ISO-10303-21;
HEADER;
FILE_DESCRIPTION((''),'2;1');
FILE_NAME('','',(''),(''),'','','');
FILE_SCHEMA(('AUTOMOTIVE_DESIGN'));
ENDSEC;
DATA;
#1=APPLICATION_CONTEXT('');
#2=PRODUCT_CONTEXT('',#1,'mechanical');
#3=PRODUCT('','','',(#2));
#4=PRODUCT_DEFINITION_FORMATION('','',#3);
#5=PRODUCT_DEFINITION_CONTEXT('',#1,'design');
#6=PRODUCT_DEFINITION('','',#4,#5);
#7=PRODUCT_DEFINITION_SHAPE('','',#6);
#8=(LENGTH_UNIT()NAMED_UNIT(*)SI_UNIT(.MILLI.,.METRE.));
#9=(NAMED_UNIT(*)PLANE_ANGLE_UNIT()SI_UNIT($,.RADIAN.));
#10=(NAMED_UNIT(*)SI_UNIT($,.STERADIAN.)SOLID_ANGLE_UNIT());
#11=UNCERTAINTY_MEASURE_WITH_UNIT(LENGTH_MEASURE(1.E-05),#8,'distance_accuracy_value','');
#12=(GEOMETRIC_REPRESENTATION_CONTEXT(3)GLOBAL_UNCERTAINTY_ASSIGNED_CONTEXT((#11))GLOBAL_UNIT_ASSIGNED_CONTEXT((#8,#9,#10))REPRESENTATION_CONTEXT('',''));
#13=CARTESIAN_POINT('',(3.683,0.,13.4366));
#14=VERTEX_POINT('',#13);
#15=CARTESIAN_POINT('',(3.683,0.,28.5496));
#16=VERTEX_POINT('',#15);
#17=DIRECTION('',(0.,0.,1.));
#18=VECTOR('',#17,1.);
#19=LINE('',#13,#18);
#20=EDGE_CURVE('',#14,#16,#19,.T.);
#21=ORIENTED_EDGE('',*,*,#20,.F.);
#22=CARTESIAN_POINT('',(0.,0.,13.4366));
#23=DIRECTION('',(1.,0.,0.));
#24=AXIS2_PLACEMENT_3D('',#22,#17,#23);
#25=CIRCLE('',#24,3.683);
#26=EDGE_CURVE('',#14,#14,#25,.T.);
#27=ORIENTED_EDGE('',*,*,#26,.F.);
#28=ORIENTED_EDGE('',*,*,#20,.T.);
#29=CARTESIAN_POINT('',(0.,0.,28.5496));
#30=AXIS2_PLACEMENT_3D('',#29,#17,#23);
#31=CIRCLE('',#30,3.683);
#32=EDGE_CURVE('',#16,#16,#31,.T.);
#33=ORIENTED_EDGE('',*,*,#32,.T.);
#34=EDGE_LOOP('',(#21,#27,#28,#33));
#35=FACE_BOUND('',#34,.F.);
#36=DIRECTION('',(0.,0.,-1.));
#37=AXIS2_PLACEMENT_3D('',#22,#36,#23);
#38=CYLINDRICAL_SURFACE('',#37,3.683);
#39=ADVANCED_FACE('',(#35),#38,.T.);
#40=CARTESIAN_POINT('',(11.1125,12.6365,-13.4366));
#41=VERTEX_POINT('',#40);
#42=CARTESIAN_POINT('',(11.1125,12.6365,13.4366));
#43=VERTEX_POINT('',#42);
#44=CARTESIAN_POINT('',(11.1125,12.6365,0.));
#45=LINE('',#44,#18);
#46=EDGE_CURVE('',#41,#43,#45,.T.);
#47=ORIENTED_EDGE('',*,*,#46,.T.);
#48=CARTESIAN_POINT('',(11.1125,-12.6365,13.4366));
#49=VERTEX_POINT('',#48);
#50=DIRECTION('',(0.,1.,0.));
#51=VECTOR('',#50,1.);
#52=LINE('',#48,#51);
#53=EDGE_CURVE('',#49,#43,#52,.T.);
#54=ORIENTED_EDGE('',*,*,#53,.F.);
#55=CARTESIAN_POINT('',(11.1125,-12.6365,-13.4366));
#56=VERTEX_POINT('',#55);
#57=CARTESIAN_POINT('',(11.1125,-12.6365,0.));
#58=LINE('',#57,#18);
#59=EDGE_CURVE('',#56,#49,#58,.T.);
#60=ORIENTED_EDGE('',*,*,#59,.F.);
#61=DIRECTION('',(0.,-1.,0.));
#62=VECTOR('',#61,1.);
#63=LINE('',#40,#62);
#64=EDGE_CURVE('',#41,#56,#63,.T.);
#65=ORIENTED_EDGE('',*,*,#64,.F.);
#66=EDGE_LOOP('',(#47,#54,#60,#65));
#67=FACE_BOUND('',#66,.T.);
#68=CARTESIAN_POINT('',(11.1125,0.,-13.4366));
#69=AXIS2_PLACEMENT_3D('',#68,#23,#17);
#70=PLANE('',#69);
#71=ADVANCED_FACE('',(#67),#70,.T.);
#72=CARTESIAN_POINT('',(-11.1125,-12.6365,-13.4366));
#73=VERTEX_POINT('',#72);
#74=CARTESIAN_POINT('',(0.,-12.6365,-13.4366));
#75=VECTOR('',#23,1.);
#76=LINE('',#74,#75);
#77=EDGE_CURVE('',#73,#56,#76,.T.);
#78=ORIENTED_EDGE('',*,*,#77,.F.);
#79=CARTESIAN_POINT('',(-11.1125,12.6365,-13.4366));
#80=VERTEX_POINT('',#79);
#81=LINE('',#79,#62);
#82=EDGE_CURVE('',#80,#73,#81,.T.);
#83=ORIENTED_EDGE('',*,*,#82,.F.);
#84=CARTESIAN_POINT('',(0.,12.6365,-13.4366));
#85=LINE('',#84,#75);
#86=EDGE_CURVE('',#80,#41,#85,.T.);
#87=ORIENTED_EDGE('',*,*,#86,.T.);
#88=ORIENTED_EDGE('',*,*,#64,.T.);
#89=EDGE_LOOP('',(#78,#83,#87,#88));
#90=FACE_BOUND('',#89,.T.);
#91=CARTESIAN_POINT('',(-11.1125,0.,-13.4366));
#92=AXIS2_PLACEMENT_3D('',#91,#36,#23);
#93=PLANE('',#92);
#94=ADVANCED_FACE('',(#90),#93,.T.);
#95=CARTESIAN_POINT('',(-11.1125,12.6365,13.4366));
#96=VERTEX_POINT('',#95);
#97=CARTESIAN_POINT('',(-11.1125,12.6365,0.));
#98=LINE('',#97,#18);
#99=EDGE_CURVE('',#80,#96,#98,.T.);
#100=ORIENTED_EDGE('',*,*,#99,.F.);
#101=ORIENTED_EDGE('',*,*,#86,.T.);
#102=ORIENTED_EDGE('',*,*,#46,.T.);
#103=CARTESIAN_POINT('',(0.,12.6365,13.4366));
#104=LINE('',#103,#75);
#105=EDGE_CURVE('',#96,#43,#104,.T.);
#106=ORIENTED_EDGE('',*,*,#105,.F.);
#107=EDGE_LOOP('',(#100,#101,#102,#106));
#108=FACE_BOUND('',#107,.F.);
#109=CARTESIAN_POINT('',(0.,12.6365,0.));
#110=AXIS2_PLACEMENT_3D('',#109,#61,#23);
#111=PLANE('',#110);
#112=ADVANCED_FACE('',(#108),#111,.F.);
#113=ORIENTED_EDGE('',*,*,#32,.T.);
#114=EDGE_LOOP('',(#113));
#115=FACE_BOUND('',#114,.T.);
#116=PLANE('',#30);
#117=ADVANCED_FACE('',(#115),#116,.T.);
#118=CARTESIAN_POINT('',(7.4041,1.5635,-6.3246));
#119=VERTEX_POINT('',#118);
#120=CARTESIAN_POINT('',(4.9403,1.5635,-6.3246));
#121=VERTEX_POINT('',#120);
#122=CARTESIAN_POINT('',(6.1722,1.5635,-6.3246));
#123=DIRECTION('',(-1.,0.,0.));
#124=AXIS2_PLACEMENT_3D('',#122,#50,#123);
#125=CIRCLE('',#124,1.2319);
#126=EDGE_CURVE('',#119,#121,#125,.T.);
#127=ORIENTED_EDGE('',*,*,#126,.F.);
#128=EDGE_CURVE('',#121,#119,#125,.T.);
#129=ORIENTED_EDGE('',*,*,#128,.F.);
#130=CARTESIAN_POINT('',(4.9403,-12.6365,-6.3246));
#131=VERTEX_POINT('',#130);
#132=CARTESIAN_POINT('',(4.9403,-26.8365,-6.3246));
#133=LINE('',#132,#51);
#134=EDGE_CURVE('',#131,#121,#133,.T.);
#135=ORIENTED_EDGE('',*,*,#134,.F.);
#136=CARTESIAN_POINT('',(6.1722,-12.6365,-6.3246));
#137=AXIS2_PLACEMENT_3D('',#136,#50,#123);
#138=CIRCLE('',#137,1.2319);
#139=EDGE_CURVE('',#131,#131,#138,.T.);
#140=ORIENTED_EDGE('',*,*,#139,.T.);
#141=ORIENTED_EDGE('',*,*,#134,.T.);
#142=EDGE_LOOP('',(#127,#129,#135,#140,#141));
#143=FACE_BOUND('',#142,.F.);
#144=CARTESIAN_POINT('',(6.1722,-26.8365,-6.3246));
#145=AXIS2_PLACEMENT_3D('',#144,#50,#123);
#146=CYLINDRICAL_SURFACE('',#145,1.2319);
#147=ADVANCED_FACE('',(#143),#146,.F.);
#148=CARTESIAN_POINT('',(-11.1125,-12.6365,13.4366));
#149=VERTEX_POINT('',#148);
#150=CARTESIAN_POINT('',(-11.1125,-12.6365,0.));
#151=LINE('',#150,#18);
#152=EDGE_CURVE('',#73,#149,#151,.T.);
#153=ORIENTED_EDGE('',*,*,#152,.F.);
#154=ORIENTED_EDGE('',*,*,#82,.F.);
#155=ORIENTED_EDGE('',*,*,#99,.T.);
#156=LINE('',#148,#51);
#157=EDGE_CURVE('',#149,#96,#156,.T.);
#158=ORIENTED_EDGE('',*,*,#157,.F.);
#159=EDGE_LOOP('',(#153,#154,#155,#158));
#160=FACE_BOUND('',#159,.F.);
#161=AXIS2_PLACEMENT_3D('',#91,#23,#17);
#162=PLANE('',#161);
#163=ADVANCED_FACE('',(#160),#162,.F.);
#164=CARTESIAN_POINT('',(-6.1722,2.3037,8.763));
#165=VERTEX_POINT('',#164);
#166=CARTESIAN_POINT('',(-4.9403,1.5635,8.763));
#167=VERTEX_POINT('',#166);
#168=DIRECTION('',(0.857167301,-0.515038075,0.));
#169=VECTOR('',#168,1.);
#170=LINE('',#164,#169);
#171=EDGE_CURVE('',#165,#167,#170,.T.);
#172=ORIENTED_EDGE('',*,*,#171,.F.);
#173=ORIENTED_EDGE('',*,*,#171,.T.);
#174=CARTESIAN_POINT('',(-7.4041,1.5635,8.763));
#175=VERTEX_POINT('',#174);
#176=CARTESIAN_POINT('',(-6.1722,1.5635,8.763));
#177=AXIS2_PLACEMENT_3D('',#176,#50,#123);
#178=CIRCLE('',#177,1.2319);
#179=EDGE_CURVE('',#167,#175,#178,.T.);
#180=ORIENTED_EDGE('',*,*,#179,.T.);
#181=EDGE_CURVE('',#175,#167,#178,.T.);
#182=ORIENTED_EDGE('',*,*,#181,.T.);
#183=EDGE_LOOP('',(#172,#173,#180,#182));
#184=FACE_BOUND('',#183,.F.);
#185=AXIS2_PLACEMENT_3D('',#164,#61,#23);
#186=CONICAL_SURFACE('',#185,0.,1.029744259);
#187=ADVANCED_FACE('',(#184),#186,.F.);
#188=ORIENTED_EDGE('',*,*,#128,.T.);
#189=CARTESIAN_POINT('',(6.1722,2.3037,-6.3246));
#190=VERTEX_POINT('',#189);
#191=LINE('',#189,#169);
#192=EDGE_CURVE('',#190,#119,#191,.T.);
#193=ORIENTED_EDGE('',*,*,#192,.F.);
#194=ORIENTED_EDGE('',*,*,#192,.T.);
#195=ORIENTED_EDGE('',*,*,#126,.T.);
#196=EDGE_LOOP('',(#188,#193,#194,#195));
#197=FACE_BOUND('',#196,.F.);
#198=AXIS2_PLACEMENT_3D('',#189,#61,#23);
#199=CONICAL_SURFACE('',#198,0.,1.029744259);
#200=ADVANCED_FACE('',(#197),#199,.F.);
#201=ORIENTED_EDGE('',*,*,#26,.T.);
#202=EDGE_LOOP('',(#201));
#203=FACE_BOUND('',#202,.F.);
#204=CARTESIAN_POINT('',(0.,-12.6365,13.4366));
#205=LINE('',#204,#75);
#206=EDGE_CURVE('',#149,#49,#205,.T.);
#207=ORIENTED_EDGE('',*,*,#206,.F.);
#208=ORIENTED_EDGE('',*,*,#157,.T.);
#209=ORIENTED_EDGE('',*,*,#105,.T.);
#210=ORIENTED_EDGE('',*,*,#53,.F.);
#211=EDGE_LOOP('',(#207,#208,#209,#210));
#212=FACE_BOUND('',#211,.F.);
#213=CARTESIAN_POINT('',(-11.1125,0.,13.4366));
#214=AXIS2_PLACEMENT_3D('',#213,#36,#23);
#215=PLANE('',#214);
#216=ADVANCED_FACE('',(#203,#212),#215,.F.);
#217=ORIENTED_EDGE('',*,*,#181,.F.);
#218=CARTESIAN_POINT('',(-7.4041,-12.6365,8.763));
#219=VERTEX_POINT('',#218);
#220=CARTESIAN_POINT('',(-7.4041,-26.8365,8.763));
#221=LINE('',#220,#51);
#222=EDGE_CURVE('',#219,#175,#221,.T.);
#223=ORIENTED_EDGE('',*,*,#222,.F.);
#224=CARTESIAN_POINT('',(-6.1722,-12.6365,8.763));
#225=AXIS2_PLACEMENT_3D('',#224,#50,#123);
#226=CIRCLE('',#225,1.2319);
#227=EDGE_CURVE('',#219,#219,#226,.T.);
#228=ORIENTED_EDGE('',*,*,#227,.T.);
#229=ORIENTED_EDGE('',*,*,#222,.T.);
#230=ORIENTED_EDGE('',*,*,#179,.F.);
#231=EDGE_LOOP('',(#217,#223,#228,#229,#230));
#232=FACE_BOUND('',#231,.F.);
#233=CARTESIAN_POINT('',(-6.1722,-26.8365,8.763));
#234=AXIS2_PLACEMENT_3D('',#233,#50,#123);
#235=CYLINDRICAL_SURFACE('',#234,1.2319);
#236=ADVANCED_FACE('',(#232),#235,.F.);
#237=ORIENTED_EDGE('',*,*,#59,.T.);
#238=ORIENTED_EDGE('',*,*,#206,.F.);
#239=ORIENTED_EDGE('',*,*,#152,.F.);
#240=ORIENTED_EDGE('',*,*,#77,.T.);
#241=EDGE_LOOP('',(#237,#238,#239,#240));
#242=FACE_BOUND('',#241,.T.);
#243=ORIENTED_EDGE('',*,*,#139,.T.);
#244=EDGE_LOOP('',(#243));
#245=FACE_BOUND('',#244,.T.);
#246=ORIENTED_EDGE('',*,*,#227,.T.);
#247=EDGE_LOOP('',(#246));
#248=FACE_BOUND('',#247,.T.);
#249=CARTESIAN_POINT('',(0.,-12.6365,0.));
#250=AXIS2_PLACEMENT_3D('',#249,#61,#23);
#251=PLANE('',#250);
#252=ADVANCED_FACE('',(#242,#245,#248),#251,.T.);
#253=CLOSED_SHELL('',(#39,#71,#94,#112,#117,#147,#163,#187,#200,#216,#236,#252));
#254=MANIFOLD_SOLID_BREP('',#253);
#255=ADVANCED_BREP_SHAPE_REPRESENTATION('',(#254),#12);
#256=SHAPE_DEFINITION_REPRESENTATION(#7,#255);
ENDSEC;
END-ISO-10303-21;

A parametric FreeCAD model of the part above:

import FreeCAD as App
import Part
import Sketcher
from FreeCAD import Vector
Q = App.Units.Quantity

doc = App.newDocument("Part")
body = doc.addObject("PartDesign::Body", "Body")

# Sketch on XZ plane
sketch1 = body.newObject("Sketcher::SketchObject", "Sketch")
sketch1.AttachmentSupport = (doc.getObject("XZ_Plane"), [""])
sketch1.MapMode = "FlatFace"
sketch1.addGeometry([
    Part.LineSegment(Vector(-11.1125, 13.4366, 0), Vector(-11.1125, -13.4366, 0)),
    Part.LineSegment(Vector(-11.1125, -13.4366, 0), Vector(11.1125, -13.4366, 0)),
    Part.LineSegment(Vector(11.1125, -13.4366, 0), Vector(11.1125, 13.4366, 0)),
    Part.LineSegment(Vector(11.1125, 13.4366, 0), Vector(-11.1125, 13.4366, 0)),
], False)
sketch1.addConstraint([
    Sketcher.Constraint("Coincident", 0, 2, 1, 1),
    Sketcher.Constraint("Coincident", 1, 2, 2, 1),
    Sketcher.Constraint("Coincident", 2, 2, 3, 1),
    Sketcher.Constraint("Coincident", 3, 2, 0, 1),
    Sketcher.Constraint("Vertical", 0),
    Sketcher.Constraint("Horizontal", 1),
    Sketcher.Constraint("Vertical", 2),
    Sketcher.Constraint("Horizontal", 3),
    Sketcher.Constraint("Symmetric", 0, 2, 2, 2, -1, 1),
    Sketcher.Constraint("DistanceX", 1, 1, 1, 2, Q("0.875 in")),
    Sketcher.Constraint("DistanceY", 0, 2, 0, 1, Q("1.058 in")),
])
pad1 = body.newObject("PartDesign::Pad", "Pad")
pad1.Profile = sketch1
pad1.Length = Q("0.995 in")
pad1.Midplane = True

# Sketch on XY plane
sketch2 = body.newObject("Sketcher::SketchObject", "Sketch001")
sketch2.AttachmentSupport = (doc.getObject("XY_Plane"), [""])
sketch2.MapMode = "FlatFace"
sketch2.AttachmentOffset = App.Placement(Vector(0, 0, 0.529 * 25.4), App.Rotation())
sketch2.addGeometry(Part.Circle(Vector(0, 0, 0), Vector(0, 0, 1), 3.683), False)
sketch2.addConstraint([
    Sketcher.Constraint("Coincident", 0, 3, -1, 1),
    Sketcher.Constraint("Diameter", 0, Q("0.29 in")),
])
pad2 = body.newObject("PartDesign::Pad", "Pad001")
pad2.Profile = sketch2
pad2.Length = Q("0.595 in")

# Sketch on XZ plane
sketch3 = body.newObject("Sketcher::SketchObject", "Sketch002")
sketch3.AttachmentSupport = (doc.getObject("XZ_Plane"), [""])
sketch3.MapMode = "FlatFace"
sketch3.AttachmentOffset = App.Placement(Vector(0, 0, 0.4975 * 25.4), App.Rotation())
sketch3.addGeometry([
    Part.Circle(Vector(-6.1722, 8.763, 0), Vector(0, 0, 1), 1.2319),
    Part.Circle(Vector(6.1722, -6.3246, 0), Vector(0, 0, 1), 1.2319),
], False)
sketch3.addConstraint([
    Sketcher.Constraint("Equal", 0, 1),
    Sketcher.Constraint("Diameter", 0, Q("0.097 in")),
    Sketcher.Constraint("DistanceX", 0, 3, -1, 1, Q("0.243 in")),
    Sketcher.Constraint("DistanceY", -1, 1, 0, 3, Q("0.345 in")),
    Sketcher.Constraint("DistanceX", -1, 1, 1, 3, Q("0.243 in")),
    Sketcher.Constraint("DistanceY", 1, 3, -1, 1, Q("0.249 in")),
])
doc.recompute()
hole = body.newObject("PartDesign::Hole", "Hole")
hole.Profile = sketch3
hole.ThreadType = "None"
hole.Diameter = Q("0.097 in")
hole.DepthType = "Dimension"
hole.Depth = 14.2
hole.DrillPoint = "Angled"
hole.DrillPointAngle = 118

doc.recompute()
